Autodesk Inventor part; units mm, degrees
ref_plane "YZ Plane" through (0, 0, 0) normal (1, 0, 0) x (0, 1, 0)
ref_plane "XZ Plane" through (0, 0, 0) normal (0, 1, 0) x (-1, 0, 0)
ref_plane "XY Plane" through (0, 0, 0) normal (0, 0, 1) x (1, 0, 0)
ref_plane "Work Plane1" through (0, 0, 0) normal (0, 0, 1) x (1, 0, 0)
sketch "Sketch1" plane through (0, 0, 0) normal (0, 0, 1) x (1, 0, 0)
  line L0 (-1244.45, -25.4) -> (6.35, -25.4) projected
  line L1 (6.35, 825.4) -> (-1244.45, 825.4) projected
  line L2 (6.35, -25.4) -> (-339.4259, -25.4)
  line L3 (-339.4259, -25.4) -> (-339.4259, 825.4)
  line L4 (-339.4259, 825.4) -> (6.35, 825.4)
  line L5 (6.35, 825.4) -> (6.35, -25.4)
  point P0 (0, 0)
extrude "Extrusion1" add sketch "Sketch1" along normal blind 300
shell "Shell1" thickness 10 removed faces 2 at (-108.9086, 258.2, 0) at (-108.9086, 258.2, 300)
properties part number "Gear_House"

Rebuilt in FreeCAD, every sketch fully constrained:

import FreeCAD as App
import Part
import Sketcher
from FreeCAD import Vector
Q = App.Units.Quantity


def faces_at(feature, points):
    """Names of the faces that lie closest to the given points."""
    faces = feature.Shape.Faces
    near = lambda p: min(range(len(faces)), key=lambda i: faces[i].distToShape(Part.Vertex(*p))[0])
    return sorted({f"Face{near(p) + 1}" for p in points})

doc = App.newDocument("Part")
body = doc.addObject("PartDesign::Body", "Body")

sketch1 = body.newObject("Sketcher::SketchObject", "Sketch")
sketch1.AttachmentSupport = (doc.getObject("XY_Plane"), [""])
sketch1.MapMode = "FlatFace"
sketch1.addGeometry(Part.LineSegment(Vector(-339.4259, 825.4, 0), Vector(-339.4259, -25.4, 0)), False)
sketch1.addGeometry(Part.LineSegment(Vector(-339.4259, -25.4, 0), Vector(6.35, -25.4, 0)), False)
sketch1.addGeometry(Part.LineSegment(Vector(6.35, -25.4, 0), Vector(6.35, 825.4, 0)), False)
sketch1.addGeometry(Part.LineSegment(Vector(6.35, 825.4, 0), Vector(-339.4259, 825.4, 0)), False)
sketch1.addConstraint(Sketcher.Constraint("Coincident", 0, 2, 1, 1))
sketch1.addConstraint(Sketcher.Constraint("Coincident", 1, 2, 2, 1))
sketch1.addConstraint(Sketcher.Constraint("Coincident", 2, 2, 3, 1))
sketch1.addConstraint(Sketcher.Constraint("Coincident", 3, 2, 0, 1))
sketch1.addConstraint(Sketcher.Constraint("Vertical", 0))
sketch1.addConstraint(Sketcher.Constraint("Horizontal", 1))
sketch1.addConstraint(Sketcher.Constraint("Vertical", 2))
sketch1.addConstraint(Sketcher.Constraint("Horizontal", 3))
sketch1.addConstraint(Sketcher.Constraint("DistanceY", 0, 2, 0, 1, Q("850.8 mm")))
sketch1.addConstraint(Sketcher.Constraint("DistanceY", 0, 2, -1, 1, Q("25.4 mm")))
sketch1.addConstraint(Sketcher.Constraint("DistanceX", 1, 1, 1, 2, Q("345.776 mm")))
sketch1.addConstraint(Sketcher.Constraint("DistanceX", -1, 1, 1, 2, Q("6.35 mm")))
pad1 = body.newObject("PartDesign::Pad", "Pad")
pad1.Profile = sketch1
pad1.Length = 300
doc.recompute()

thickness = body.newObject("PartDesign::Thickness", "Thickness")
thickness.Base = (pad1, faces_at(pad1, [(-108.909, 258.2, 0), (-108.909, 258.2, 300)]))
thickness.Value = 10
thickness.Reversed = True
thickness.Join = "Intersection"

doc.recompute()
